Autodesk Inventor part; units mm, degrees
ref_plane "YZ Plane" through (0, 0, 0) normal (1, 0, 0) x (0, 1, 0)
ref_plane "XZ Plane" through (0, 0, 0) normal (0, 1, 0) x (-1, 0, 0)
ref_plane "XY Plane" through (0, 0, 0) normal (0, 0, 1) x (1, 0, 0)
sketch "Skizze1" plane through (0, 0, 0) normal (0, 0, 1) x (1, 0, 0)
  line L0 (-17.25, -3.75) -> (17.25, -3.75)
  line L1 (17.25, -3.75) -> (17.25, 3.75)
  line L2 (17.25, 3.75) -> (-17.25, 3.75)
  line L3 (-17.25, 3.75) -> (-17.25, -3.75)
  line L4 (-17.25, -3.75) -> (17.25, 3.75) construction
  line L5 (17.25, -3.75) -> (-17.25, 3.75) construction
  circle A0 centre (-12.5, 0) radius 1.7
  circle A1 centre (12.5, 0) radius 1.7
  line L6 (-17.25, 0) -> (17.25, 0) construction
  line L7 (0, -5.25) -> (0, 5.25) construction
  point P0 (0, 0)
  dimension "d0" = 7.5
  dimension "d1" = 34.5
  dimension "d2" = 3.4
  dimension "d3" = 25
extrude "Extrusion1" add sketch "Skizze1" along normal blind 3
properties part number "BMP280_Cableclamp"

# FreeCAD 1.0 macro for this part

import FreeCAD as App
import Part
import Sketcher

V = App.Vector


def add_polygon(sketch, points):
    """Adds a closed chain of lines whose ends are joined by coincident constraints."""
    first, n = sketch.GeometryCount, len(points)
    for a, b in zip(points, points[1:] + points[:1]):
        sketch.addGeometry(Part.LineSegment(App.Vector(*a, 0), App.Vector(*b, 0)), False)
    for i in range(n):
        sketch.addConstraint(Sketcher.Constraint("Coincident", first + i, 2, first + (i + 1) % n, 1))

doc = App.newDocument("Part")
params = doc.addObject("Spreadsheet::Sheet", "Params")
for row, (alias, value) in enumerate([
    ("sketch1_diameter", "3.4 mm"),
    ("sketch1_width", "34.5 mm"),
    ("sketch1_height", "7.5 mm"),
    ("pad1_length", "3 mm"),
], start=1):
    params.set(f"A{row}", alias)
    params.set(f"B{row}", "=" + value)
    params.setAlias(f"B{row}", alias)

body = doc.addObject("PartDesign::Body", "Body")

# Sketch on XY plane
sketch1 = doc.addObject("Sketcher::SketchObject", "Sketch")
body.addObject(sketch1)
sketch1.AttachmentSupport = (doc.XY_Plane, [""])
sketch1.MapMode = "FlatFace"
add_polygon(sketch1, [(-17.25, 3.75), (-17.25, -3.75), (17.25, -3.75), (17.25, 3.75)])  # lines 0-3
sketch1.addGeometry(Part.Circle(V(-12.5, 0, 0), V(0, 0, 1), 1.7), False)  # 4
sketch1.addGeometry(Part.Circle(V(12.5, 0, 0), V(0, 0, 1), 1.7), False)  # 5
sketch1.addConstraint([
    Sketcher.Constraint("Vertical", 0),
    Sketcher.Constraint("Horizontal", 1),
    Sketcher.Constraint("Vertical", 2),
    Sketcher.Constraint("Horizontal", 3),
    Sketcher.Constraint("Equal", 4, 5),
    Sketcher.Constraint("Symmetric", 4, 3, 5, 3, -1, 1),
    Sketcher.Constraint("Symmetric", 0, 2, 2, 2, -1, 1),
    Sketcher.Constraint("PointOnObject", 4, 3, -1),
    Sketcher.Constraint("Diameter", 4, 3.4),
    Sketcher.Constraint("DistanceX", 1, 1, 1, 2, 34.5),
    Sketcher.Constraint("DistanceY", 0, 2, 0, 1, 7.5),
    Sketcher.Constraint("DistanceX", 4, 3, 5, 3, 25.0),
])
sketch1.setExpression("Constraints[12]", "Params.sketch1_diameter")
sketch1.setExpression("Constraints[13]", "Params.sketch1_width")
sketch1.setExpression("Constraints[14]", "Params.sketch1_height")
pad1 = doc.addObject("PartDesign::Pad", "Pad")
body.addObject(pad1)
pad1.Profile = sketch1
pad1.setExpression("Length", "Params.pad1_length")

doc.recompute()
